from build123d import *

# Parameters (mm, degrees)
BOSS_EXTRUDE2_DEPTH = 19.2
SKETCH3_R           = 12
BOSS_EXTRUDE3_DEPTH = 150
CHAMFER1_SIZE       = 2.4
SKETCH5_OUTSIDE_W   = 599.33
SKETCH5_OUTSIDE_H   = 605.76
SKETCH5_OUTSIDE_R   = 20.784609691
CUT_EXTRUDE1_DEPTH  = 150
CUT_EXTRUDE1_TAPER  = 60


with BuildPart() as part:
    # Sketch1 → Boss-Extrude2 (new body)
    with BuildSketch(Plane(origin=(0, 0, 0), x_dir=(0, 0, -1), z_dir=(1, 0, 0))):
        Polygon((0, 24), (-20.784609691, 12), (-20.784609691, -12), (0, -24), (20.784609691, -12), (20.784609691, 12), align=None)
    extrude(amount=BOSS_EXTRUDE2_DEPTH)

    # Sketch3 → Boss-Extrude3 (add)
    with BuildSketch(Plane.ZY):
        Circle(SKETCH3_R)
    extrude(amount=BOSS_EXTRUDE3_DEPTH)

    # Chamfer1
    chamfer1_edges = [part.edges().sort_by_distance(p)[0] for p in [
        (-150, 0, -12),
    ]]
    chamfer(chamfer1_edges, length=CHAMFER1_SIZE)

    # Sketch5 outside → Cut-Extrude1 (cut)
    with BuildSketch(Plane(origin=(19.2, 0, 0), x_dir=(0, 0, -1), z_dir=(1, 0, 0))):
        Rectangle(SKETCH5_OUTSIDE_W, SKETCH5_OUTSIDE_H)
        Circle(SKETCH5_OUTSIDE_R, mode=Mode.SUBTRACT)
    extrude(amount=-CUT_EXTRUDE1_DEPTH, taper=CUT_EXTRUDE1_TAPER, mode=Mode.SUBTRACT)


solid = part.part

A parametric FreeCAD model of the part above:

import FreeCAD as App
import Part
import Sketcher
from FreeCAD import Vector
Q = App.Units.Quantity


def edges_at(feature, points):
    """Names of the edges that pass closest to the given points."""
    edges = feature.Shape.Edges
    near = lambda p: min(range(len(edges)), key=lambda i: edges[i].distToShape(Part.Vertex(*p))[0])
    return sorted({f"Edge{near(p) + 1}" for p in points})

doc = App.newDocument("Part")
body = doc.addObject("PartDesign::Body", "Body")

sketch1 = body.newObject("Sketcher::SketchObject", "Sketch")
sketch1.AttachmentSupport = (doc.getObject("YZ_Plane"), [""])
sketch1.MapMode = "FlatFace"
sketch1.addGeometry([
    Part.LineSegment(Vector(24, 0, 0), Vector(12, 21, 0)),
    Part.LineSegment(Vector(12, 21, 0), Vector(-12, 21, 0)),
    Part.LineSegment(Vector(-12, 21, 0), Vector(-24, 0, 0)),
    Part.LineSegment(Vector(-24, 0, 0), Vector(-12, -21, 0)),
    Part.LineSegment(Vector(-12, -21, 0), Vector(12, -21, 0)),
    Part.LineSegment(Vector(12, -21, 0), Vector(24, 0, 0)),
], False)
sketch1.addConstraint([
    Sketcher.Constraint("Coincident", 0, 2, 1, 1),
    Sketcher.Constraint("Coincident", 1, 2, 2, 1),
    Sketcher.Constraint("Coincident", 2, 2, 3, 1),
    Sketcher.Constraint("Coincident", 3, 2, 4, 1),
    Sketcher.Constraint("Coincident", 4, 2, 5, 1),
    Sketcher.Constraint("Coincident", 5, 2, 0, 1),
    Sketcher.Constraint("Horizontal", 1),
    Sketcher.Constraint("Horizontal", 4),
    Sketcher.Constraint("Symmetric", 0, 2, 3, 2, -1, 1),
    Sketcher.Constraint("Symmetric", 2, 2, 5, 2, -1, 1),
    Sketcher.Constraint("PointOnObject", 2, 2, -1),
    Sketcher.Constraint("Parallel", 2, 5),
    Sketcher.Constraint("Vertical", 1, 2, 3, 2),
    Sketcher.Constraint("DistanceX", 1, 2, 1, 1, Q("24 mm")),
    Sketcher.Constraint("Angle", 0, Q("120 deg")),
    Sketcher.Constraint("Distance", 0, Q("24 mm")),
])
pad1 = body.newObject("PartDesign::Pad", "Pad")
pad1.Profile = sketch1
pad1.Length = 19.2

sketch2 = body.newObject("Sketcher::SketchObject", "Sketch001")
sketch2.AttachmentSupport = (doc.getObject("YZ_Plane"), [""])
sketch2.MapMode = "FlatFace"
sketch2.addGeometry(Part.Circle(Vector(0, 0, 0), Vector(0, 0, 1), 12), False)
sketch2.addConstraint([
    Sketcher.Constraint("Coincident", 0, 3, -1, 1),
    Sketcher.Constraint("Diameter", 0, Q("24 mm")),
])
pad2 = body.newObject("PartDesign::Pad", "Pad001")
pad2.Profile = sketch2
pad2.Length = 150
pad2.Reversed = True
doc.recompute()

chamfer = body.newObject("PartDesign::Chamfer", "Chamfer")
chamfer.Base = (pad2, edges_at(pad2, [(-150, 0, -12)]))
chamfer.Size = 2.4

sketch3 = body.newObject("Sketcher::SketchObject", "Sketch002")
sketch3.AttachmentSupport = (doc.getObject("YZ_Plane"), [""])
sketch3.MapMode = "FlatFace"
sketch3.AttachmentOffset = App.Placement(Vector(0, 0, 19.2), App.Rotation())
sketch3.addGeometry([
    Part.LineSegment(Vector(303, 300, 0), Vector(-303, 300, 0)),
    Part.LineSegment(Vector(-303, 300, 0), Vector(-303, -300, 0)),
    Part.LineSegment(Vector(-303, -300, 0), Vector(303, -300, 0)),
    Part.LineSegment(Vector(303, -300, 0), Vector(303, 300, 0)),
    Part.Circle(Vector(0, 0, 0), Vector(0, 0, 1), 21),
], False)
sketch3.addConstraint([
    Sketcher.Constraint("Coincident", 0, 2, 1, 1),
    Sketcher.Constraint("Coincident", 1, 2, 2, 1),
    Sketcher.Constraint("Coincident", 2, 2, 3, 1),
    Sketcher.Constraint("Coincident", 3, 2, 0, 1),
    Sketcher.Constraint("Horizontal", 0),
    Sketcher.Constraint("Vertical", 1),
    Sketcher.Constraint("Horizontal", 2),
    Sketcher.Constraint("Vertical", 3),
    Sketcher.Constraint("Coincident", 4, 3, -1, 1),
    Sketcher.Constraint("Symmetric", 0, 2, 2, 2, -1, 1),
    Sketcher.Constraint("DistanceX", 0, 2, 0, 1, Q("605.76 mm")),
    Sketcher.Constraint("DistanceY", 1, 2, 1, 1, Q("599.33 mm")),
    Sketcher.Constraint("Diameter", 4, Q("41.569219 mm")),
])
pocket1 = body.newObject("PartDesign::Pocket", "Pocket")
pocket1.Profile = sketch3
pocket1.Length = 150
pocket1.TaperAngle = 60

doc.recompute()
